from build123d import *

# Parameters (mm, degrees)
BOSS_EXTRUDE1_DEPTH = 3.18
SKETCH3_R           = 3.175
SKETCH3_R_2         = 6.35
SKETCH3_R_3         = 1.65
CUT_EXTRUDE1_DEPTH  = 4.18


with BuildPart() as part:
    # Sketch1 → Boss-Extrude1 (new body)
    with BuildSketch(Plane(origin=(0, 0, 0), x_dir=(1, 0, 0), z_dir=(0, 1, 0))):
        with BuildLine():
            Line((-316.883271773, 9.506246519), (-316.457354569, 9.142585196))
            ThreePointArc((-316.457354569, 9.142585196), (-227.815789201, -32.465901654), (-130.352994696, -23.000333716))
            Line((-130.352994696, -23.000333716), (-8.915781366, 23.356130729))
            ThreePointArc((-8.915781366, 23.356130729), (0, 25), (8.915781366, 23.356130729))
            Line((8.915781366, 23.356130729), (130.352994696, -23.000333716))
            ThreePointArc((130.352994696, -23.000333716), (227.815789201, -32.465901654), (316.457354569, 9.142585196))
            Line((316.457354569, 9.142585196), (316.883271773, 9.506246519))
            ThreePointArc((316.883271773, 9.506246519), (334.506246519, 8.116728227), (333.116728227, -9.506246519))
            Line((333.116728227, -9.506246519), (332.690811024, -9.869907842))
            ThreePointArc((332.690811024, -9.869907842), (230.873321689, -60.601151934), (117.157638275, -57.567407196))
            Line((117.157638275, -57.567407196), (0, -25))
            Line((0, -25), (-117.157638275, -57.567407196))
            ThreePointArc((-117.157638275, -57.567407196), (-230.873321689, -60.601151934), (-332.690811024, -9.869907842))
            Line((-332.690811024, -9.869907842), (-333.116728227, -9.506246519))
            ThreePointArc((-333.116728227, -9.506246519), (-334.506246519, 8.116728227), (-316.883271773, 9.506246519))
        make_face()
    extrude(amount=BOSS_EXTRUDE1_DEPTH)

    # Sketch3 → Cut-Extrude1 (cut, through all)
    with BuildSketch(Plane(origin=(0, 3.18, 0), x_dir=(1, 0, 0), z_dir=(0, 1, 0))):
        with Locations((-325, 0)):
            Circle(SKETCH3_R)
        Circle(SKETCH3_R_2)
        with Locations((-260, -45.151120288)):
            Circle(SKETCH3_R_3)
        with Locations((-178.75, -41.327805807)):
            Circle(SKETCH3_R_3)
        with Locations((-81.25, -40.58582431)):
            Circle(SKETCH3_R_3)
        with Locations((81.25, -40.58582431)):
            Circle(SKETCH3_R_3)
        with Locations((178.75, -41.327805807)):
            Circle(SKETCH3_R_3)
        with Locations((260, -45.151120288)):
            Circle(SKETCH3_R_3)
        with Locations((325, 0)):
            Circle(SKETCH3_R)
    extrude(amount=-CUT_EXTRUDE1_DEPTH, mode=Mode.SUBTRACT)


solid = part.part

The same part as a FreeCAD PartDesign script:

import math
import FreeCAD as App
import Part
import Sketcher
from FreeCAD import Vector
Q = App.Units.Quantity

doc = App.newDocument("Part")
body = doc.addObject("PartDesign::Body", "Body")

# Sketch on XZ plane
sketch1 = body.newObject("Sketcher::SketchObject", "Sketch")
sketch1.AttachmentSupport = (doc.getObject("XZ_Plane"), [""])
sketch1.MapMode = "FlatFace"
sketch1.addGeometry([
    Part.LineSegment(Vector(-316.457355, -9.142585, 0), Vector(-316.883272, -9.506247, 0)),  # 0
    Part.ArcOfCircle(Part.Circle(Vector(-325, 0, 0), Vector(0, 0, 1), 12.5), math.radians(130.491728), math.radians(310.491728)),  # 1
    Part.LineSegment(Vector(-333.116728, 9.506247, 0), Vector(-332.690811, 9.869908, 0)),  # 2
    Part.ArcOfCircle(Part.Circle(Vector(-180.09632, -168.847527, 0), Vector(0, 0, 1), 235), math.radians(74.465166), math.radians(130.491728)),  # 3
    Part.LineSegment(Vector(-117.157638, 57.567407, 0), Vector(0, 25, 0)),  # 4
    Part.LineSegment(Vector(0, 25, 0), Vector(117.157638, 57.567407, 0)),  # 5
    Part.ArcOfCircle(Part.Circle(Vector(180.09632, -168.847527, 0), Vector(0, 0, 1), 235), math.radians(49.508272), math.radians(105.534834)),  # 6
    Part.LineSegment(Vector(332.690811, 9.869908, 0), Vector(333.116728, 9.506247, 0)),  # 7
    Part.ArcOfCircle(Part.Circle(Vector(325, 0, 0), Vector(0, 0, 1), 12.5), math.radians(-130.491728), math.radians(49.508272)),  # 8
    Part.LineSegment(Vector(316.883272, -9.506247, 0), Vector(316.457355, -9.142585, 0)),  # 9
    Part.ArcOfCircle(Part.Circle(Vector(196.329777, -149.835034, 0), Vector(0, 0, 1), 185), math.radians(49.508272), math.radians(110.893453)),  # 10
    Part.LineSegment(Vector(130.352995, 23.000334, 0), Vector(8.915781, -23.356131, 0)),  # 11
    Part.ArcOfCircle(Part.Circle(Vector(0, 0, 0), Vector(0, 0, 1), 25), math.radians(-110.893453), math.radians(-69.106547)),  # 12
    Part.LineSegment(Vector(-8.915781, -23.356131, 0), Vector(-130.352995, 23.000334, 0)),  # 13
    Part.ArcOfCircle(Part.Circle(Vector(-196.329777, -149.835034, 0), Vector(0, 0, 1), 185), math.radians(69.106547), math.radians(130.491728)),  # 14
], False)
sketch1.addConstraint([
    Sketcher.Constraint("Tangent", 0, 2, 1, 2),
    Sketcher.Constraint("Tangent", 1, 1, 2, 1),
    Sketcher.Constraint("Tangent", 2, 2, 3, 2),
    Sketcher.Constraint("Tangent", 3, 1, 4, 1),
    Sketcher.Constraint("Coincident", 4, 2, 5, 1),
    Sketcher.Constraint("Tangent", 5, 2, 6, 2),
    Sketcher.Constraint("Tangent", 6, 1, 7, 1),
    Sketcher.Constraint("Tangent", 7, 2, 8, 2),
    Sketcher.Constraint("Tangent", 8, 1, 9, 1),
    Sketcher.Constraint("Tangent", 9, 2, 10, 1),
    Sketcher.Constraint("Tangent", 10, 2, 11, 1),
    Sketcher.Constraint("Tangent", 11, 2, 12, 2),
    Sketcher.Constraint("Tangent", 12, 1, 13, 1),
    Sketcher.Constraint("Tangent", 13, 2, 14, 1),
    Sketcher.Constraint("Tangent", 14, 2, 0, 1),
    Sketcher.Constraint("Coincident", 12, 3, -1, 1),
    Sketcher.Constraint("Equal", 3, 6),
    Sketcher.Constraint("Equal", 1, 8),
    Sketcher.Constraint("Equal", 10, 14),
    Sketcher.Constraint("Symmetric", 1, 3, 8, 3, -1, 1),
    Sketcher.Constraint("Symmetric", 3, 3, 6, 3, -2),
    Sketcher.Constraint("Symmetric", 10, 3, 14, 3, -2),
    Sketcher.Constraint("PointOnObject", 4, 2, -2),
    Sketcher.Constraint("Horizontal", 1, 3, 8, 3),
    Sketcher.Constraint("Equal", 0, 2),
    Sketcher.Constraint("Radius", 3, Q("235 mm")),
    Sketcher.Constraint("Radius", 10, Q("185 mm")),
    Sketcher.Constraint("Radius", 12, Q("25 mm")),
    Sketcher.Constraint("Radius", 1, Q("12.5 mm")),
    Sketcher.Constraint("DistanceX", 1, 3, -1, 1, Q("325 mm")),
    Sketcher.Constraint("DistanceY", -1, 1, 4, 2, Q("25 mm")),
    Sketcher.Constraint("Distance", 11, Q("129.984301 mm")),
    Sketcher.Constraint("DistanceY", 2, 2, 3, 1, Q("47.697499 mm")),
    Sketcher.Constraint("Distance", 0, Q("0.560049 mm")),
])
pad1 = body.newObject("PartDesign::Pad", "Pad")
pad1.Profile = sketch1
pad1.Length = 3.18
pad1.Reversed = True

# Sketch on XZ plane
sketch2 = body.newObject("Sketcher::SketchObject", "Sketch001")
sketch2.AttachmentSupport = (doc.getObject("XZ_Plane"), [""])
sketch2.MapMode = "FlatFace"
sketch2.AttachmentOffset = App.Placement(Vector(0, 0, -3.18), App.Rotation())
sketch2.addGeometry([
    Part.Circle(Vector(-325, 0, 0), Vector(0, 0, 1), 3.175),  # 0
    Part.Circle(Vector(0, 0, 0), Vector(0, 0, 1), 6.35),  # 1
    Part.Circle(Vector(-260, 45.15112, 0), Vector(0, 0, 1), 1.65),  # 2
    Part.Circle(Vector(-178.75, 41.327806, 0), Vector(0, 0, 1), 1.65),  # 3
    Part.Circle(Vector(-81.25, 40.585824, 0), Vector(0, 0, 1), 1.65),  # 4
    Part.Circle(Vector(81.25, 40.585824, 0), Vector(0, 0, 1), 1.65),  # 5
    Part.Circle(Vector(178.75, 41.327806, 0), Vector(0, 0, 1), 1.65),  # 6
    Part.Circle(Vector(260, 45.15112, 0), Vector(0, 0, 1), 1.65),  # 7
    Part.Circle(Vector(325, 0, 0), Vector(0, 0, 1), 3.175),  # 8
], False)
sketch2.addConstraint([
    Sketcher.Constraint("Coincident", 1, 3, -1, 1),
    Sketcher.Constraint("Equal", 2, 3),
    Sketcher.Constraint("Equal", 3, 4),
    Sketcher.Constraint("Equal", 4, 5),
    Sketcher.Constraint("Equal", 5, 6),
    Sketcher.Constraint("Equal", 6, 7),
    Sketcher.Constraint("Equal", 0, 8),
    Sketcher.Constraint("Symmetric", 0, 3, 8, 3, -1, 1),
    Sketcher.Constraint("Symmetric", 4, 3, 5, 3, -2),
    Sketcher.Constraint("Symmetric", 3, 3, 6, 3, -2),
    Sketcher.Constraint("Symmetric", 2, 3, 7, 3, -2),
    Sketcher.Constraint("PointOnObject", 0, 3, -1),
    Sketcher.Constraint("Diameter", 1, Q("12.7 mm")),
    Sketcher.Constraint("Diameter", 2, Q("3.3 mm")),
    Sketcher.Constraint("Diameter", 0, Q("6.35 mm")),
    Sketcher.Constraint("DistanceX", 0, 3, -1, 1, Q("325 mm")),
    Sketcher.Constraint("DistanceX", 2, 3, -1, 1, Q("260 mm")),
    Sketcher.Constraint("DistanceX", 3, 3, 5, 3, Q("260 mm")),
    Sketcher.Constraint("DistanceX", 3, 3, 4, 3, Q("97.5 mm")),
    Sketcher.Constraint("DistanceY", -1, 1, 2, 3, Q("45.15112 mm")),
    Sketcher.Constraint("DistanceY", 4, 3, 3, 3, Q("0.741981 mm")),
    Sketcher.Constraint("DistanceY", -1, 1, 3, 3, Q("41.327806 mm")),
])
pocket1 = body.newObject("PartDesign::Pocket", "Pocket")
pocket1.Profile = sketch2
pocket1.Type = "ThroughAll"
pocket1.Reversed = True

doc.recompute()
